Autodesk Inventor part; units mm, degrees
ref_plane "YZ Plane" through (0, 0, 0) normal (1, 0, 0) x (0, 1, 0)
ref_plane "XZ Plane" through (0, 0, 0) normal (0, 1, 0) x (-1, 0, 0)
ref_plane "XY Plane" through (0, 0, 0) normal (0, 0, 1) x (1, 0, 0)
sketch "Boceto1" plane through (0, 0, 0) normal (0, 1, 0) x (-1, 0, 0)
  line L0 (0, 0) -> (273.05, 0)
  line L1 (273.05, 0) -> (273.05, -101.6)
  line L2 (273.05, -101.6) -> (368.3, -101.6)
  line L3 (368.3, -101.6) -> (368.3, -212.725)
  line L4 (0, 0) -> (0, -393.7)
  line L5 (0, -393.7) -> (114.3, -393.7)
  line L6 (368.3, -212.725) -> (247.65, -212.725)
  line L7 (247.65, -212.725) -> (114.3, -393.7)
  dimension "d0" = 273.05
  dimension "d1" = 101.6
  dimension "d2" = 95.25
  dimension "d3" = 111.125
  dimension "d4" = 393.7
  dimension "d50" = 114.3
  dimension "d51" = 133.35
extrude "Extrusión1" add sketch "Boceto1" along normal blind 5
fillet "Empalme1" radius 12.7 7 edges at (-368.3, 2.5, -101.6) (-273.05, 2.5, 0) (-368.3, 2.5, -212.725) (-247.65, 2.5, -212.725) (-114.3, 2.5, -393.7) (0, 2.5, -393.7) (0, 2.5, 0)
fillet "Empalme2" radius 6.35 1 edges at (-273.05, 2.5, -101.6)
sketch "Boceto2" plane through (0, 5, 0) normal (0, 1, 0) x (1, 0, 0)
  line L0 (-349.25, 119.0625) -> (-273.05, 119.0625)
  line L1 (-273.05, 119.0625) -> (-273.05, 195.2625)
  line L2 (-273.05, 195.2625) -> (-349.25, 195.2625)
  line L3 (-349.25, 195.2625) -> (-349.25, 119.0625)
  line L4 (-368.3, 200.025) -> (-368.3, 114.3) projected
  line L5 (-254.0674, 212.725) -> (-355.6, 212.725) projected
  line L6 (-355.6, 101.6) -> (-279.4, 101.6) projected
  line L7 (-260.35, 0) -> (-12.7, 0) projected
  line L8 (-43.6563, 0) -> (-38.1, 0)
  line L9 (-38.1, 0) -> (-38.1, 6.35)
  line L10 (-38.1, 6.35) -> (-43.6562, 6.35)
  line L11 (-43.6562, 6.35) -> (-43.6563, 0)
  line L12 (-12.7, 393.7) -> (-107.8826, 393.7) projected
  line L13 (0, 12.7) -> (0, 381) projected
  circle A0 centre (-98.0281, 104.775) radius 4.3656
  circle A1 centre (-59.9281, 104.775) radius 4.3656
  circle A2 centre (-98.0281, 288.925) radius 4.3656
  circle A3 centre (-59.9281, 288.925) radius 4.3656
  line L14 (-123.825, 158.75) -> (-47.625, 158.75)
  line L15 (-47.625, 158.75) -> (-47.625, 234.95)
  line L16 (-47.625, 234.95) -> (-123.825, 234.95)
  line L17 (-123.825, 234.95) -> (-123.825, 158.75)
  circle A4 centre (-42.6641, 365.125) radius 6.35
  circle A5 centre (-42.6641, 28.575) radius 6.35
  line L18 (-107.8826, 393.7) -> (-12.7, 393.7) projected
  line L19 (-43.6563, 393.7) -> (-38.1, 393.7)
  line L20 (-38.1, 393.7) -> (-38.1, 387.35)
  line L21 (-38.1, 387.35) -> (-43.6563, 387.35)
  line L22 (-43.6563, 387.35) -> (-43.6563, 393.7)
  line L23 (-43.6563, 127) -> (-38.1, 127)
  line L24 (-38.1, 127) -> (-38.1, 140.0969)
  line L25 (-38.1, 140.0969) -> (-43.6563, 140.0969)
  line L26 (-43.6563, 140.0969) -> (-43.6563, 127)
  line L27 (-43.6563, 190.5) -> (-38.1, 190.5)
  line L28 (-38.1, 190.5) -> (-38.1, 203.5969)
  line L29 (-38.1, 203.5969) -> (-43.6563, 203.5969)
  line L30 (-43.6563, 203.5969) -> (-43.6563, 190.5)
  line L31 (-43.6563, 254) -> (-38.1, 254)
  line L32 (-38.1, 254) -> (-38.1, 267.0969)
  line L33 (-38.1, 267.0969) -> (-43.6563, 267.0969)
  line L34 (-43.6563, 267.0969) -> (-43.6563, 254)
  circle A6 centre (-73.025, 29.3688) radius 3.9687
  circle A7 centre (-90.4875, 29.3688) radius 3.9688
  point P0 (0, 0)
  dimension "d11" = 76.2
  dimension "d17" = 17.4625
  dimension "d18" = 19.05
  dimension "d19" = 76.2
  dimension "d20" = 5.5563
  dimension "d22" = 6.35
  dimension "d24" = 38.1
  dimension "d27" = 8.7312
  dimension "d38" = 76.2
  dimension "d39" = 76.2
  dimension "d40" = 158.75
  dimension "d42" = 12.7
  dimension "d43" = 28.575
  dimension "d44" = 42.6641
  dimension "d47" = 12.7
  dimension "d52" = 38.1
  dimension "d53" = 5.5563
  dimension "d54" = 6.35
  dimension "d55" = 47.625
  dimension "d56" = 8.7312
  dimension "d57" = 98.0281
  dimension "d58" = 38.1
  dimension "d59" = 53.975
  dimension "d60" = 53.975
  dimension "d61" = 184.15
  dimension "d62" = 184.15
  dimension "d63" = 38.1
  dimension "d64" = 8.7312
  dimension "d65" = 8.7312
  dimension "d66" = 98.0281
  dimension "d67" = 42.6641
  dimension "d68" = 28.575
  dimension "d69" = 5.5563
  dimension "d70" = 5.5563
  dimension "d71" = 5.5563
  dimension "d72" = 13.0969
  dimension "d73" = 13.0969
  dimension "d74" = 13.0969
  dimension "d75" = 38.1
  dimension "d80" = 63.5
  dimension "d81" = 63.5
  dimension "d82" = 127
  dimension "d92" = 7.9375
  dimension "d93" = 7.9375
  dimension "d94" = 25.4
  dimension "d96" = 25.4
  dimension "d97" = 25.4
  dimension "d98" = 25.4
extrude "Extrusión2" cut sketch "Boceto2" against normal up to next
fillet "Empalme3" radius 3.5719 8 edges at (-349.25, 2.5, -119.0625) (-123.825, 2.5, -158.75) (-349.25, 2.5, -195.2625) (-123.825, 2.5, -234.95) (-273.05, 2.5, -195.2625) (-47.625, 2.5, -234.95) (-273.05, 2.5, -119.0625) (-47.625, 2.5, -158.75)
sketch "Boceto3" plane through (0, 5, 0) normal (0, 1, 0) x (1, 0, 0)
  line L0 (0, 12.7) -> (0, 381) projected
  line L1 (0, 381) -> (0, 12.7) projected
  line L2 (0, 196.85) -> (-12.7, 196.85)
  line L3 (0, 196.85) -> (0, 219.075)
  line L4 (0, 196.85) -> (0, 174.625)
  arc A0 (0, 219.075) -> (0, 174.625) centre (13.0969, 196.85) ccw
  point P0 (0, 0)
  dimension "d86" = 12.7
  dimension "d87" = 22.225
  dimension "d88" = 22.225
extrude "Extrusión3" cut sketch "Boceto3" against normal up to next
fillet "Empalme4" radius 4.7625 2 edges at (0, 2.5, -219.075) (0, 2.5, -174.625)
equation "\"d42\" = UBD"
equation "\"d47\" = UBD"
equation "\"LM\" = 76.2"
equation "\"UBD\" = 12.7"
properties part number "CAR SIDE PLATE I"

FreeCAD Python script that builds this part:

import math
import FreeCAD as App
import Part
import Sketcher
Q = App.Units.Quantity


def edges_at(feature, points):
    """Names of the edges that pass closest to the given points."""
    edges = feature.Shape.Edges
    near = lambda p: min(range(len(edges)), key=lambda i: edges[i].distToShape(Part.Vertex(*p))[0])
    return sorted({f"Edge{near(p) + 1}" for p in points})

doc = App.newDocument("Part")
body = doc.addObject("PartDesign::Body", "Body")

# Sketch on XZ plane
sketch1 = body.newObject("Sketcher::SketchObject", "Sketch")
sketch1.AttachmentSupport = (doc.getObject("XZ_Plane"), [""])
sketch1.MapMode = "FlatFace"
sketch1.addGeometry([
    Part.LineSegment(App.Vector(-273.05, 0, 0), App.Vector(0, 0, 0)),  # 0
    Part.LineSegment(App.Vector(0, 0, 0), App.Vector(0, -393.7, 0)),  # 1
    Part.LineSegment(App.Vector(0, -393.7, 0), App.Vector(-114.3, -393.7, 0)),  # 2
    Part.LineSegment(App.Vector(-114.3, -393.7, 0), App.Vector(-247.65, -212.725, 0)),  # 3
    Part.LineSegment(App.Vector(-247.65, -212.725, 0), App.Vector(-368.3, -212.725, 0)),  # 4
    Part.LineSegment(App.Vector(-368.3, -212.725, 0), App.Vector(-368.3, -101.6, 0)),  # 5
    Part.LineSegment(App.Vector(-368.3, -101.6, 0), App.Vector(-273.05, -101.6, 0)),  # 6
    Part.LineSegment(App.Vector(-273.05, -101.6, 0), App.Vector(-273.05, 0, 0)),  # 7
], False)
sketch1.addConstraint([
    Sketcher.Constraint("Coincident", 0, 2, 1, 1),
    Sketcher.Constraint("Coincident", 1, 2, 2, 1),
    Sketcher.Constraint("Coincident", 2, 2, 3, 1),
    Sketcher.Constraint("Coincident", 3, 2, 4, 1),
    Sketcher.Constraint("Coincident", 4, 2, 5, 1),
    Sketcher.Constraint("Coincident", 5, 2, 6, 1),
    Sketcher.Constraint("Coincident", 6, 2, 7, 1),
    Sketcher.Constraint("Coincident", 7, 2, 0, 1),
    Sketcher.Constraint("Horizontal", 0),
    Sketcher.Constraint("Vertical", 1),
    Sketcher.Constraint("Horizontal", 2),
    Sketcher.Constraint("Horizontal", 4),
    Sketcher.Constraint("Vertical", 5),
    Sketcher.Constraint("Horizontal", 6),
    Sketcher.Constraint("Vertical", 7),
    Sketcher.Constraint("Coincident", 0, 2, -1, 1),
    Sketcher.Constraint("DistanceY", 7, 1, 7, 2, Q("4 in")),
    Sketcher.Constraint("DistanceX", 2, 2, 2, 1, Q("4.5 in")),
    Sketcher.Constraint("DistanceY", 1, 2, 1, 1, Q("15.5 in")),
    Sketcher.Constraint("DistanceX", 0, 1, 0, 2, Q("10.75 in")),
    Sketcher.Constraint("DistanceX", 6, 1, 6, 2, Q("3.75 in")),
    Sketcher.Constraint("DistanceY", 5, 1, 5, 2, Q("4.375 in")),
    Sketcher.Constraint("DistanceX", 3, 2, 2, 2, Q("5.25 in")),
])
pad1 = body.newObject("PartDesign::Pad", "Pad")
pad1.Profile = sketch1
pad1.Length = 5
pad1.Reversed = True
doc.recompute()

fillet = body.newObject("PartDesign::Fillet", "Fillet")
fillet.Base = (pad1, edges_at(pad1, [
    (-368.3, 2.5, -101.6),
    (-273.05, 2.5, 0),
    (-368.3, 2.5, -212.725),
    (-247.65, 2.5, -212.725),
    (-114.3, 2.5, -393.7),
    (0, 2.5, -393.7),
    (0, 2.5, 0),
]))
fillet.Radius = Q("0.5 in")
doc.recompute()

fillet2 = body.newObject("PartDesign::Fillet", "Fillet001")
fillet2.Base = (fillet, edges_at(fillet, [(-273.05, 2.5, -101.6)]))
fillet2.Radius = Q("0.25 in")

# Sketch on XZ plane
sketch2 = body.newObject("Sketcher::SketchObject", "Sketch001")
sketch2.AttachmentSupport = (doc.getObject("XZ_Plane"), [""])
sketch2.MapMode = "FlatFace"
sketch2.AttachmentOffset = App.Placement(App.Vector(0, 0, -5), App.Rotation())
sketch2.addGeometry([
    Part.LineSegment(App.Vector(-349.25, -195.2625, 0), App.Vector(-349.25, -119.0625, 0)),  # 0
    Part.LineSegment(App.Vector(-349.25, -119.0625, 0), App.Vector(-273.05, -119.0625, 0)),  # 1
    Part.LineSegment(App.Vector(-273.05, -119.0625, 0), App.Vector(-273.05, -195.2625, 0)),  # 2
    Part.LineSegment(App.Vector(-273.05, -195.2625, 0), App.Vector(-349.25, -195.2625, 0)),  # 3
    Part.LineSegment(App.Vector(-43.6562, -6.35, 0), App.Vector(-43.6563, 0, 0)),  # 4
    Part.LineSegment(App.Vector(-43.6563, 0, 0), App.Vector(-38.1, 0, 0)),  # 5
    Part.LineSegment(App.Vector(-38.1, 0, 0), App.Vector(-38.1, -6.35, 0)),  # 6
    Part.LineSegment(App.Vector(-38.1, -6.35, 0), App.Vector(-43.6562, -6.35, 0)),  # 7
    Part.LineSegment(App.Vector(-38.1, -387.35, 0), App.Vector(-38.1, -393.7, 0)),  # 8
    Part.LineSegment(App.Vector(-38.1, -393.7, 0), App.Vector(-43.6563, -393.7, 0)),  # 9
    Part.LineSegment(App.Vector(-43.6563, -393.7, 0), App.Vector(-43.6563, -387.35, 0)),  # 10
    Part.LineSegment(App.Vector(-43.6563, -387.35, 0), App.Vector(-38.1, -387.35, 0)),  # 11
    Part.Circle(App.Vector(-98.0281, -104.775, 0), App.Vector(0, 0, 1), 4.3656),  # 12
    Part.Circle(App.Vector(-59.9281, -104.775, 0), App.Vector(0, 0, 1), 4.3656),  # 13
    Part.Circle(App.Vector(-98.0281, -288.925, 0), App.Vector(0, 0, 1), 4.3656),  # 14
    Part.Circle(App.Vector(-59.9281, -288.925, 0), App.Vector(0, 0, 1), 4.3656),  # 15
    Part.LineSegment(App.Vector(-123.825, -234.95, 0), App.Vector(-123.825, -158.75, 0)),  # 16
    Part.LineSegment(App.Vector(-123.825, -158.75, 0), App.Vector(-47.625, -158.75, 0)),  # 17
    Part.LineSegment(App.Vector(-47.625, -158.75, 0), App.Vector(-47.625, -234.95, 0)),  # 18
    Part.LineSegment(App.Vector(-47.625, -234.95, 0), App.Vector(-123.825, -234.95, 0)),  # 19
    Part.Circle(App.Vector(-42.6641, -365.125, 0), App.Vector(0, 0, 1), 6.35),  # 20
    Part.Circle(App.Vector(-42.6641, -28.575, 0), App.Vector(0, 0, 1), 6.35),  # 21
    Part.LineSegment(App.Vector(-43.6563, -140.0969, 0), App.Vector(-43.6563, -127, 0)),  # 22
    Part.LineSegment(App.Vector(-43.6563, -127, 0), App.Vector(-38.1, -127, 0)),  # 23
    Part.LineSegment(App.Vector(-38.1, -127, 0), App.Vector(-38.1, -140.0969, 0)),  # 24
    Part.LineSegment(App.Vector(-38.1, -140.0969, 0), App.Vector(-43.6563, -140.0969, 0)),  # 25
    Part.LineSegment(App.Vector(-43.6563, -203.5969, 0), App.Vector(-43.6563, -190.5, 0)),  # 26
    Part.LineSegment(App.Vector(-43.6563, -190.5, 0), App.Vector(-38.1, -190.5, 0)),  # 27
    Part.LineSegment(App.Vector(-38.1, -190.5, 0), App.Vector(-38.1, -203.5969, 0)),  # 28
    Part.LineSegment(App.Vector(-38.1, -203.5969, 0), App.Vector(-43.6563, -203.5969, 0)),  # 29
    Part.LineSegment(App.Vector(-43.6563, -267.0969, 0), App.Vector(-43.6563, -254, 0)),  # 30
    Part.LineSegment(App.Vector(-43.6563, -254, 0), App.Vector(-38.1, -254, 0)),  # 31
    Part.LineSegment(App.Vector(-38.1, -254, 0), App.Vector(-38.1, -267.0969, 0)),  # 32
    Part.LineSegment(App.Vector(-38.1, -267.0969, 0), App.Vector(-43.6563, -267.0969, 0)),  # 33
    Part.Circle(App.Vector(-73.025, -29.3688, 0), App.Vector(0, 0, 1), 3.9687),  # 34
    Part.Circle(App.Vector(-90.4875, -29.3688, 0), App.Vector(0, 0, 1), 3.9688),  # 35
], False)
sketch2.addConstraint([
    Sketcher.Constraint("Coincident", 0, 2, 1, 1),
    Sketcher.Constraint("Coincident", 1, 2, 2, 1),
    Sketcher.Constraint("Coincident", 2, 2, 3, 1),
    Sketcher.Constraint("Coincident", 3, 2, 0, 1),
    Sketcher.Constraint("Coincident", 4, 2, 5, 1),
    Sketcher.Constraint("Coincident", 5, 2, 6, 1),
    Sketcher.Constraint("Coincident", 6, 2, 7, 1),
    Sketcher.Constraint("Coincident", 7, 2, 4, 1),
    Sketcher.Constraint("Coincident", 8, 2, 9, 1),
    Sketcher.Constraint("Coincident", 9, 2, 10, 1),
    Sketcher.Constraint("Coincident", 10, 2, 11, 1),
    Sketcher.Constraint("Coincident", 11, 2, 8, 1),
    Sketcher.Constraint("Coincident", 16, 2, 17, 1),
    Sketcher.Constraint("Coincident", 17, 2, 18, 1),
    Sketcher.Constraint("Coincident", 18, 2, 19, 1),
    Sketcher.Constraint("Coincident", 19, 2, 16, 1),
    Sketcher.Constraint("Coincident", 22, 2, 23, 1),
    Sketcher.Constraint("Coincident", 23, 2, 24, 1),
    Sketcher.Constraint("Coincident", 24, 2, 25, 1),
    Sketcher.Constraint("Coincident", 25, 2, 22, 1),
    Sketcher.Constraint("Coincident", 26, 2, 27, 1),
    Sketcher.Constraint("Coincident", 27, 2, 28, 1),
    Sketcher.Constraint("Coincident", 28, 2, 29, 1),
    Sketcher.Constraint("Coincident", 29, 2, 26, 1),
    Sketcher.Constraint("Coincident", 30, 2, 31, 1),
    Sketcher.Constraint("Coincident", 31, 2, 32, 1),
    Sketcher.Constraint("Coincident", 32, 2, 33, 1),
    Sketcher.Constraint("Coincident", 33, 2, 30, 1),
    Sketcher.Constraint("Vertical", 0),
    Sketcher.Constraint("Horizontal", 1),
    Sketcher.Constraint("Vertical", 2),
    Sketcher.Constraint("Horizontal", 3),
    Sketcher.Constraint("Vertical", 4),
    Sketcher.Constraint("Horizontal", 5),
    Sketcher.Constraint("Vertical", 6),
    Sketcher.Constraint("Horizontal", 7),
    Sketcher.Constraint("Vertical", 8),
    Sketcher.Constraint("Horizontal", 9),
    Sketcher.Constraint("Vertical", 10),
    Sketcher.Constraint("Horizontal", 11),
    Sketcher.Constraint("Vertical", 16),
    Sketcher.Constraint("Horizontal", 17),
    Sketcher.Constraint("Vertical", 18),
    Sketcher.Constraint("Horizontal", 19),
    Sketcher.Constraint("Vertical", 22),
    Sketcher.Constraint("Horizontal", 23),
    Sketcher.Constraint("Vertical", 24),
    Sketcher.Constraint("Horizontal", 25),
    Sketcher.Constraint("Vertical", 26),
    Sketcher.Constraint("Horizontal", 27),
    Sketcher.Constraint("Vertical", 28),
    Sketcher.Constraint("Horizontal", 29),
    Sketcher.Constraint("Vertical", 30),
    Sketcher.Constraint("Horizontal", 31),
    Sketcher.Constraint("Vertical", 32),
    Sketcher.Constraint("Horizontal", 33),
    Sketcher.Constraint("Equal", 12, 13),
    Sketcher.Constraint("Equal", 13, 14),
    Sketcher.Constraint("Equal", 14, 15),
    Sketcher.Constraint("Equal", 20, 21),
    Sketcher.Constraint("Equal", 34, 35),
    Sketcher.Constraint("PointOnObject", 4, 2, -1),
    Sketcher.Constraint("Horizontal", 12, 3, 13, 3),
    Sketcher.Constraint("Horizontal", 14, 3, 15, 3),
    Sketcher.Constraint("Horizontal", 34, 3, 35, 3),
    Sketcher.Constraint("Vertical", 12, 3, 14, 3),
    Sketcher.Constraint("Vertical", 13, 3, 15, 3),
    Sketcher.Constraint("Vertical", 20, 3, 21, 3),
    Sketcher.Constraint("Vertical", 6, 2, 8, 2),
    Sketcher.Constraint("Vertical", 7, 2, 9, 2),
    Sketcher.Constraint("Vertical", 10, 2, 22, 2),
    Sketcher.Constraint("Vertical", 11, 2, 23, 2),
    Sketcher.Constraint("Vertical", 25, 2, 26, 2),
    Sketcher.Constraint("Vertical", 24, 2, 27, 2),
    Sketcher.Constraint("Vertical", 29, 2, 30, 2),
    Sketcher.Constraint("Vertical", 28, 2, 31, 2),
    Sketcher.Constraint("Equal", 3, 17),
    Sketcher.Constraint("Equal", 19, 0),
    Sketcher.Constraint("Equal", 6, 8),
    Sketcher.Constraint("Equal", 2, 16),
    Sketcher.Constraint("Equal", 24, 26),
    Sketcher.Constraint("Equal", 28, 30),
    Sketcher.Constraint("Diameter", 20, Q("0.5 in")),
    Sketcher.Constraint("DistanceX", 1, 1, 1, 2, Q("3 in")),
    Sketcher.Constraint("Diameter", 12, Q("0.343748 in")),
    Sketcher.Constraint("Diameter", 34, Q("0.3125 in")),
    Sketcher.Constraint("DistanceY", 22, 2, -1, 1, Q("5 in")),
    Sketcher.Constraint("DistanceY", 20, 3, 15, 3, Q("3 in")),
    Sketcher.Constraint("DistanceY", 13, 3, 21, 3, Q("3 in")),
    Sketcher.Constraint("DistanceY", 4, 1, 4, 2, Q("0.25 in")),
    Sketcher.Constraint("DistanceX", 5, 2, -1, 1, Q("1.5 in")),
    Sketcher.Constraint("DistanceX", 12, 3, 13, 3, Q("1.5 in")),
    Sketcher.Constraint("DistanceY", 26, 2, 22, 2, Q("2.5 in")),
    Sketcher.Constraint("DistanceY", 30, 2, 26, 2, Q("2.5 in")),
    Sketcher.Constraint("DistanceX", 5, 1, 5, 2, Q("0.218752 in")),
    Sketcher.Constraint("DistanceY", 22, 1, 22, 2, Q("0.5156299 in")),
    Sketcher.Constraint("DistanceY", 16, 2, -1, 1, Q("6.25 in")),
    Sketcher.Constraint("DistanceY", 14, 3, 12, 3, Q("7.25 in")),
    Sketcher.Constraint("DistanceX", 12, 3, -1, 1, Q("3.8593701 in")),
    Sketcher.Constraint("DistanceY", 21, 3, -1, 1, Q("1.125 in")),
    Sketcher.Constraint("DistanceX", 17, 2, -1, 1, Q("1.875 in")),
    Sketcher.Constraint("DistanceX", 34, 3, 13, 3, Q("0.5156299 in")),
    Sketcher.Constraint("DistanceX", 35, 3, 34, 3, Q("0.6875 in")),
    Sketcher.Constraint("DistanceY", 8, 2, 20, 3, Q("1.125 in")),
    Sketcher.Constraint("DistanceX", 20, 3, -1, 1, Q("1.6797 in")),
    Sketcher.Constraint("DistanceX", 0, 2, -1, 1, Q("13.75 in")),
    Sketcher.Constraint("DistanceY", 34, 3, -1, 1, Q("1.156252 in")),
    Sketcher.Constraint("DistanceY", 0, 2, -1, 1, Q("4.6875 in")),
])
pocket1 = body.newObject("PartDesign::Pocket", "Pocket")
pocket1.Profile = sketch2
pocket1.Type = "UpToFirst"
pocket1.Reversed = True
doc.recompute()

fillet3 = body.newObject("PartDesign::Fillet", "Fillet002")
fillet3.Base = (pocket1, edges_at(pocket1, [
    (-349.25, 2.5, -119.062),
    (-123.825, 2.5, -158.75),
    (-349.25, 2.5, -195.262),
    (-123.825, 2.5, -234.95),
    (-273.05, 2.5, -195.262),
    (-47.625, 2.5, -234.95),
    (-273.05, 2.5, -119.062),
    (-47.625, 2.5, -158.75),
]))
fillet3.Radius = Q("0.140626 in")

# Sketch on XZ plane
sketch3 = body.newObject("Sketcher::SketchObject", "Sketch002")
sketch3.AttachmentSupport = (doc.getObject("XZ_Plane"), [""])
sketch3.MapMode = "FlatFace"
sketch3.AttachmentOffset = App.Placement(App.Vector(0, 0, -5), App.Rotation())
sketch3.addGeometry([
    Part.LineSegment(App.Vector(0, -174.625, 0), App.Vector(0, -219.075, 0)),
    Part.ArcOfCircle(Part.Circle(App.Vector(13.0969, -196.85, 0), App.Vector(0, 0, 1), 25.796888), math.radians(120.510285), math.radians(239.489715)),
], False)
sketch3.addConstraint([
    Sketcher.Constraint("Coincident", 0, 1, 1, 1),
    Sketcher.Constraint("Coincident", 1, 2, 0, 2),
    Sketcher.Constraint("Vertical", 0),
    Sketcher.Constraint("PointOnObject", 0, 1, -2),
    Sketcher.Constraint("Radius", 1, Q("1.0156299 in")),
    Sketcher.Constraint("DistanceY", 1, 3, 0, 1, Q("0.875 in")),
    Sketcher.Constraint("DistanceY", 1, 3, -1, 1, Q("7.75 in")),
])
pocket2 = body.newObject("PartDesign::Pocket", "Pocket001")
pocket2.Profile = sketch3
pocket2.Type = "UpToFirst"
pocket2.Reversed = True
doc.recompute()

fillet4 = body.newObject("PartDesign::Fillet", "Fillet003")
fillet4.Base = (pocket2, edges_at(pocket2, [(0, 2.5, -219.075), (0, 2.5, -174.625)]))
fillet4.Radius = Q("0.1875 in")

doc.recompute()
